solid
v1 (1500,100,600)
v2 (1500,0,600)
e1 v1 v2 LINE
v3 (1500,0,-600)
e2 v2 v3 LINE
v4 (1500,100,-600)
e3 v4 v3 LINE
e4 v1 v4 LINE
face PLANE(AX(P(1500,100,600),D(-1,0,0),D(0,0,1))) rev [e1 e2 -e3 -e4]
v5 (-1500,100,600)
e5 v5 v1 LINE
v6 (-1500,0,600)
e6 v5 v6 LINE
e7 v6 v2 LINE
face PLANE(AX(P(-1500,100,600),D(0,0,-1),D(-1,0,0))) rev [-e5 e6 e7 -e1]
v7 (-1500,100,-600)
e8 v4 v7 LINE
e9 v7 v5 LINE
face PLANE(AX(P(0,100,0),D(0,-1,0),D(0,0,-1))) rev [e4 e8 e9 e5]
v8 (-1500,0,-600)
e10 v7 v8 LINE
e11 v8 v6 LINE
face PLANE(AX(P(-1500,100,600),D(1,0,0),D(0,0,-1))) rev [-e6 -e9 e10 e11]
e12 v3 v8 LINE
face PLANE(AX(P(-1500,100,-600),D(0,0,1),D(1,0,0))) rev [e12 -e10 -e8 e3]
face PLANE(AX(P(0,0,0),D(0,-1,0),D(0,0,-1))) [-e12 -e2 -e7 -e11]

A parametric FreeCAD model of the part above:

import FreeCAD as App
import Part
import Sketcher


def add_polygon(sketch, points):
    """Adds a closed chain of lines whose ends are joined by coincident constraints."""
    first, n = sketch.GeometryCount, len(points)
    for a, b in zip(points, points[1:] + points[:1]):
        sketch.addGeometry(Part.LineSegment(App.Vector(*a, 0), App.Vector(*b, 0)), False)
    for i in range(n):
        sketch.addConstraint(Sketcher.Constraint("Coincident", first + i, 2, first + (i + 1) % n, 1))

doc = App.newDocument("Part")
params = doc.addObject("Spreadsheet::Sheet", "Params")
for row, (alias, value) in enumerate([
    ("sketch1_width", "3000 mm"),
    ("sketch1_height", "1200 mm"),
    ("pad1_length", "100 mm"),
], start=1):
    params.set(f"A{row}", alias)
    params.set(f"B{row}", "=" + value)
    params.setAlias(f"B{row}", alias)

body = doc.addObject("PartDesign::Body", "Body")

# Sketch on XZ plane
sketch1 = doc.addObject("Sketcher::SketchObject", "Sketch")
body.addObject(sketch1)
sketch1.AttachmentSupport = (doc.XZ_Plane, [""])
sketch1.MapMode = "FlatFace"
add_polygon(sketch1, [(-1500, -600), (-1500, 600), (1500, 600), (1500, -600)])  # lines 0-3
sketch1.addConstraint([
    Sketcher.Constraint("Vertical", 0),
    Sketcher.Constraint("Horizontal", 1),
    Sketcher.Constraint("Vertical", 2),
    Sketcher.Constraint("Horizontal", 3),
    Sketcher.Constraint("Symmetric", 0, 2, 2, 2, -1, 1),
    Sketcher.Constraint("DistanceX", 1, 1, 1, 2, 3000.0),
    Sketcher.Constraint("DistanceY", 0, 1, 0, 2, 1200.0),
])
sketch1.setExpression("Constraints[9]", "Params.sketch1_width")
sketch1.setExpression("Constraints[10]", "Params.sketch1_height")
pad1 = doc.addObject("PartDesign::Pad", "Pad")
body.addObject(pad1)
pad1.Profile = sketch1
pad1.setExpression("Length", "Params.pad1_length")
pad1.Reversed = True

doc.recompute()
